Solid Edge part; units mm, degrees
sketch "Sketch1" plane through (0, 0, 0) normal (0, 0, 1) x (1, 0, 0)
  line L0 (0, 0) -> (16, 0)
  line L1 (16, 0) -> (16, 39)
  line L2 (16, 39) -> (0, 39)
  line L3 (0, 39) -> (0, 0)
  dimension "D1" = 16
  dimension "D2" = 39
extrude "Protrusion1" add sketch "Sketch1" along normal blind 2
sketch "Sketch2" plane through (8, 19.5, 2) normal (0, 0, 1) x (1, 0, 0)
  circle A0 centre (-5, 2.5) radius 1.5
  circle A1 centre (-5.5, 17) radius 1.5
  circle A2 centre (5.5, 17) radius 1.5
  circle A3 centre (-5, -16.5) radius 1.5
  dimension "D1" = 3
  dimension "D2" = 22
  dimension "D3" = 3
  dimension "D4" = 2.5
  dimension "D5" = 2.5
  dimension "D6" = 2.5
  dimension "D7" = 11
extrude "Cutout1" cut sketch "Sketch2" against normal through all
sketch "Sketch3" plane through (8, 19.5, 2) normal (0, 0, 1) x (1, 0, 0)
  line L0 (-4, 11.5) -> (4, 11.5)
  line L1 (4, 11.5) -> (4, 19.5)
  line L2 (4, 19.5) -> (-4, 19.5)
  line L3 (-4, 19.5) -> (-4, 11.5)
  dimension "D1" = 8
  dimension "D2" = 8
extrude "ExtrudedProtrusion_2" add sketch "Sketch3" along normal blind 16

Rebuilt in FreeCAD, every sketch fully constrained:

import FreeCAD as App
import Part
import Sketcher
Q = App.Units.Quantity


def add_polygon(sketch, points):
    """Adds a closed chain of lines whose ends are joined by coincident constraints."""
    first, n = sketch.GeometryCount, len(points)
    for a, b in zip(points, points[1:] + points[:1]):
        sketch.addGeometry(Part.LineSegment(App.Vector(*a, 0), App.Vector(*b, 0)), False)
    for i in range(n):
        sketch.addConstraint(Sketcher.Constraint("Coincident", first + i, 2, first + (i + 1) % n, 1))

doc = App.newDocument("Part")
params = doc.addObject("Spreadsheet::Sheet", "Params")
for row, (alias, value) in enumerate([
    ("sketch1_width", "16 mm"),
    ("sketch1_height", "39 mm"),
    ("pad1_length", "2 mm"),
    ("sketch2_diameter", "3 mm"),
    ("sketch3_width", "8 mm"),
    ("pad2_length", "16 mm"),
], start=1):
    params.set(f"A{row}", alias)
    params.set(f"B{row}", "=" + value)
    params.setAlias(f"B{row}", alias)

body = doc.addObject("PartDesign::Body", "Body")

# Sketch on XY plane
sketch1 = body.newObject("Sketcher::SketchObject", "Sketch")
sketch1.AttachmentSupport = (doc.getObject("XY_Plane"), [""])
sketch1.MapMode = "FlatFace"
add_polygon(sketch1, [(0, 39), (0, 0), (16, 0), (16, 39)])  # lines 0-3
sketch1.addConstraint(Sketcher.Constraint("Vertical", 0))
sketch1.addConstraint(Sketcher.Constraint("Horizontal", 1))
sketch1.addConstraint(Sketcher.Constraint("Vertical", 2))
sketch1.addConstraint(Sketcher.Constraint("Horizontal", 3))
sketch1.addConstraint(Sketcher.Constraint("Coincident", 0, 2, -1, 1))
sketch1.addConstraint(Sketcher.Constraint("DistanceX", 1, 1, 1, 2, Q("16 mm")))
sketch1.addConstraint(Sketcher.Constraint("DistanceY", 0, 2, 0, 1, Q("39 mm")))
sketch1.setExpression("Constraints[9]", "Params.sketch1_width")
sketch1.setExpression("Constraints[10]", "Params.sketch1_height")
pad1 = body.newObject("PartDesign::Pad", "Pad")
pad1.Profile = sketch1
pad1.setExpression("Length", "Params.pad1_length")

# Sketch on XY plane
sketch2 = body.newObject("Sketcher::SketchObject", "Sketch001")
sketch2.AttachmentSupport = (doc.getObject("XY_Plane"), [""])
sketch2.MapMode = "FlatFace"
sketch2.AttachmentOffset = App.Placement(App.Vector(0, 0, 2), App.Rotation())
sketch2.addGeometry(Part.Circle(App.Vector(3, 22, 0), App.Vector(0, 0, 1), 1.5), False)
sketch2.addGeometry(Part.Circle(App.Vector(2.5, 36.5, 0), App.Vector(0, 0, 1), 1.5), False)
sketch2.addGeometry(Part.Circle(App.Vector(13.5, 36.5, 0), App.Vector(0, 0, 1), 1.5), False)
sketch2.addGeometry(Part.Circle(App.Vector(3, 3, 0), App.Vector(0, 0, 1), 1.5), False)
sketch2.addConstraint(Sketcher.Constraint("Equal", 0, 1))
sketch2.addConstraint(Sketcher.Constraint("Equal", 1, 2))
sketch2.addConstraint(Sketcher.Constraint("Equal", 2, 3))
sketch2.addConstraint(Sketcher.Constraint("Horizontal", 1, 3, 2, 3))
sketch2.addConstraint(Sketcher.Constraint("Vertical", 0, 3, 3, 3))
sketch2.addConstraint(Sketcher.Constraint("Diameter", 0, Q("3 mm")))
sketch2.addConstraint(Sketcher.Constraint("DistanceX", -1, 1, 0, 3, Q("3 mm")))
sketch2.addConstraint(Sketcher.Constraint("DistanceY", -1, 1, 0, 3, Q("22 mm")))
sketch2.addConstraint(Sketcher.Constraint("DistanceY", -1, 1, 3, 3, Q("3 mm")))
sketch2.addConstraint(Sketcher.Constraint("DistanceX", 1, 3, 2, 3, Q("11 mm")))
sketch2.addConstraint(Sketcher.Constraint("DistanceX", -1, 1, 1, 3, Q("2.5 mm")))
sketch2.addConstraint(Sketcher.Constraint("DistanceY", -1, 1, 1, 3, Q("36.5 mm")))
sketch2.setExpression("Constraints[5]", "Params.sketch2_diameter")
pocket1 = body.newObject("PartDesign::Pocket", "Pocket")
pocket1.Profile = sketch2
pocket1.Type = "ThroughAll"

# Sketch on XY plane
sketch3 = body.newObject("Sketcher::SketchObject", "Sketch002")
sketch3.AttachmentSupport = (doc.getObject("XY_Plane"), [""])
sketch3.MapMode = "FlatFace"
sketch3.AttachmentOffset = App.Placement(App.Vector(0, 0, 2), App.Rotation())
add_polygon(sketch3, [(4, 39), (4, 31), (12, 31), (12, 39)])  # lines 0-3
sketch3.addConstraint(Sketcher.Constraint("Vertical", 0))
sketch3.addConstraint(Sketcher.Constraint("Horizontal", 1))
sketch3.addConstraint(Sketcher.Constraint("Vertical", 2))
sketch3.addConstraint(Sketcher.Constraint("Horizontal", 3))
sketch3.addConstraint(Sketcher.Constraint("Equal", 3, 0))
sketch3.addConstraint(Sketcher.Constraint("DistanceX", -1, 1, 0, 2, Q("4 mm")))
sketch3.addConstraint(Sketcher.Constraint("DistanceX", 1, 1, 1, 2, Q("8 mm")))
sketch3.addConstraint(Sketcher.Constraint("DistanceY", -1, 1, 0, 2, Q("31 mm")))
sketch3.setExpression("Constraints[10]", "Params.sketch3_width")
pad2 = body.newObject("PartDesign::Pad", "Pad001")
pad2.Profile = sketch3
pad2.setExpression("Length", "Params.pad2_length")

doc.recompute()
